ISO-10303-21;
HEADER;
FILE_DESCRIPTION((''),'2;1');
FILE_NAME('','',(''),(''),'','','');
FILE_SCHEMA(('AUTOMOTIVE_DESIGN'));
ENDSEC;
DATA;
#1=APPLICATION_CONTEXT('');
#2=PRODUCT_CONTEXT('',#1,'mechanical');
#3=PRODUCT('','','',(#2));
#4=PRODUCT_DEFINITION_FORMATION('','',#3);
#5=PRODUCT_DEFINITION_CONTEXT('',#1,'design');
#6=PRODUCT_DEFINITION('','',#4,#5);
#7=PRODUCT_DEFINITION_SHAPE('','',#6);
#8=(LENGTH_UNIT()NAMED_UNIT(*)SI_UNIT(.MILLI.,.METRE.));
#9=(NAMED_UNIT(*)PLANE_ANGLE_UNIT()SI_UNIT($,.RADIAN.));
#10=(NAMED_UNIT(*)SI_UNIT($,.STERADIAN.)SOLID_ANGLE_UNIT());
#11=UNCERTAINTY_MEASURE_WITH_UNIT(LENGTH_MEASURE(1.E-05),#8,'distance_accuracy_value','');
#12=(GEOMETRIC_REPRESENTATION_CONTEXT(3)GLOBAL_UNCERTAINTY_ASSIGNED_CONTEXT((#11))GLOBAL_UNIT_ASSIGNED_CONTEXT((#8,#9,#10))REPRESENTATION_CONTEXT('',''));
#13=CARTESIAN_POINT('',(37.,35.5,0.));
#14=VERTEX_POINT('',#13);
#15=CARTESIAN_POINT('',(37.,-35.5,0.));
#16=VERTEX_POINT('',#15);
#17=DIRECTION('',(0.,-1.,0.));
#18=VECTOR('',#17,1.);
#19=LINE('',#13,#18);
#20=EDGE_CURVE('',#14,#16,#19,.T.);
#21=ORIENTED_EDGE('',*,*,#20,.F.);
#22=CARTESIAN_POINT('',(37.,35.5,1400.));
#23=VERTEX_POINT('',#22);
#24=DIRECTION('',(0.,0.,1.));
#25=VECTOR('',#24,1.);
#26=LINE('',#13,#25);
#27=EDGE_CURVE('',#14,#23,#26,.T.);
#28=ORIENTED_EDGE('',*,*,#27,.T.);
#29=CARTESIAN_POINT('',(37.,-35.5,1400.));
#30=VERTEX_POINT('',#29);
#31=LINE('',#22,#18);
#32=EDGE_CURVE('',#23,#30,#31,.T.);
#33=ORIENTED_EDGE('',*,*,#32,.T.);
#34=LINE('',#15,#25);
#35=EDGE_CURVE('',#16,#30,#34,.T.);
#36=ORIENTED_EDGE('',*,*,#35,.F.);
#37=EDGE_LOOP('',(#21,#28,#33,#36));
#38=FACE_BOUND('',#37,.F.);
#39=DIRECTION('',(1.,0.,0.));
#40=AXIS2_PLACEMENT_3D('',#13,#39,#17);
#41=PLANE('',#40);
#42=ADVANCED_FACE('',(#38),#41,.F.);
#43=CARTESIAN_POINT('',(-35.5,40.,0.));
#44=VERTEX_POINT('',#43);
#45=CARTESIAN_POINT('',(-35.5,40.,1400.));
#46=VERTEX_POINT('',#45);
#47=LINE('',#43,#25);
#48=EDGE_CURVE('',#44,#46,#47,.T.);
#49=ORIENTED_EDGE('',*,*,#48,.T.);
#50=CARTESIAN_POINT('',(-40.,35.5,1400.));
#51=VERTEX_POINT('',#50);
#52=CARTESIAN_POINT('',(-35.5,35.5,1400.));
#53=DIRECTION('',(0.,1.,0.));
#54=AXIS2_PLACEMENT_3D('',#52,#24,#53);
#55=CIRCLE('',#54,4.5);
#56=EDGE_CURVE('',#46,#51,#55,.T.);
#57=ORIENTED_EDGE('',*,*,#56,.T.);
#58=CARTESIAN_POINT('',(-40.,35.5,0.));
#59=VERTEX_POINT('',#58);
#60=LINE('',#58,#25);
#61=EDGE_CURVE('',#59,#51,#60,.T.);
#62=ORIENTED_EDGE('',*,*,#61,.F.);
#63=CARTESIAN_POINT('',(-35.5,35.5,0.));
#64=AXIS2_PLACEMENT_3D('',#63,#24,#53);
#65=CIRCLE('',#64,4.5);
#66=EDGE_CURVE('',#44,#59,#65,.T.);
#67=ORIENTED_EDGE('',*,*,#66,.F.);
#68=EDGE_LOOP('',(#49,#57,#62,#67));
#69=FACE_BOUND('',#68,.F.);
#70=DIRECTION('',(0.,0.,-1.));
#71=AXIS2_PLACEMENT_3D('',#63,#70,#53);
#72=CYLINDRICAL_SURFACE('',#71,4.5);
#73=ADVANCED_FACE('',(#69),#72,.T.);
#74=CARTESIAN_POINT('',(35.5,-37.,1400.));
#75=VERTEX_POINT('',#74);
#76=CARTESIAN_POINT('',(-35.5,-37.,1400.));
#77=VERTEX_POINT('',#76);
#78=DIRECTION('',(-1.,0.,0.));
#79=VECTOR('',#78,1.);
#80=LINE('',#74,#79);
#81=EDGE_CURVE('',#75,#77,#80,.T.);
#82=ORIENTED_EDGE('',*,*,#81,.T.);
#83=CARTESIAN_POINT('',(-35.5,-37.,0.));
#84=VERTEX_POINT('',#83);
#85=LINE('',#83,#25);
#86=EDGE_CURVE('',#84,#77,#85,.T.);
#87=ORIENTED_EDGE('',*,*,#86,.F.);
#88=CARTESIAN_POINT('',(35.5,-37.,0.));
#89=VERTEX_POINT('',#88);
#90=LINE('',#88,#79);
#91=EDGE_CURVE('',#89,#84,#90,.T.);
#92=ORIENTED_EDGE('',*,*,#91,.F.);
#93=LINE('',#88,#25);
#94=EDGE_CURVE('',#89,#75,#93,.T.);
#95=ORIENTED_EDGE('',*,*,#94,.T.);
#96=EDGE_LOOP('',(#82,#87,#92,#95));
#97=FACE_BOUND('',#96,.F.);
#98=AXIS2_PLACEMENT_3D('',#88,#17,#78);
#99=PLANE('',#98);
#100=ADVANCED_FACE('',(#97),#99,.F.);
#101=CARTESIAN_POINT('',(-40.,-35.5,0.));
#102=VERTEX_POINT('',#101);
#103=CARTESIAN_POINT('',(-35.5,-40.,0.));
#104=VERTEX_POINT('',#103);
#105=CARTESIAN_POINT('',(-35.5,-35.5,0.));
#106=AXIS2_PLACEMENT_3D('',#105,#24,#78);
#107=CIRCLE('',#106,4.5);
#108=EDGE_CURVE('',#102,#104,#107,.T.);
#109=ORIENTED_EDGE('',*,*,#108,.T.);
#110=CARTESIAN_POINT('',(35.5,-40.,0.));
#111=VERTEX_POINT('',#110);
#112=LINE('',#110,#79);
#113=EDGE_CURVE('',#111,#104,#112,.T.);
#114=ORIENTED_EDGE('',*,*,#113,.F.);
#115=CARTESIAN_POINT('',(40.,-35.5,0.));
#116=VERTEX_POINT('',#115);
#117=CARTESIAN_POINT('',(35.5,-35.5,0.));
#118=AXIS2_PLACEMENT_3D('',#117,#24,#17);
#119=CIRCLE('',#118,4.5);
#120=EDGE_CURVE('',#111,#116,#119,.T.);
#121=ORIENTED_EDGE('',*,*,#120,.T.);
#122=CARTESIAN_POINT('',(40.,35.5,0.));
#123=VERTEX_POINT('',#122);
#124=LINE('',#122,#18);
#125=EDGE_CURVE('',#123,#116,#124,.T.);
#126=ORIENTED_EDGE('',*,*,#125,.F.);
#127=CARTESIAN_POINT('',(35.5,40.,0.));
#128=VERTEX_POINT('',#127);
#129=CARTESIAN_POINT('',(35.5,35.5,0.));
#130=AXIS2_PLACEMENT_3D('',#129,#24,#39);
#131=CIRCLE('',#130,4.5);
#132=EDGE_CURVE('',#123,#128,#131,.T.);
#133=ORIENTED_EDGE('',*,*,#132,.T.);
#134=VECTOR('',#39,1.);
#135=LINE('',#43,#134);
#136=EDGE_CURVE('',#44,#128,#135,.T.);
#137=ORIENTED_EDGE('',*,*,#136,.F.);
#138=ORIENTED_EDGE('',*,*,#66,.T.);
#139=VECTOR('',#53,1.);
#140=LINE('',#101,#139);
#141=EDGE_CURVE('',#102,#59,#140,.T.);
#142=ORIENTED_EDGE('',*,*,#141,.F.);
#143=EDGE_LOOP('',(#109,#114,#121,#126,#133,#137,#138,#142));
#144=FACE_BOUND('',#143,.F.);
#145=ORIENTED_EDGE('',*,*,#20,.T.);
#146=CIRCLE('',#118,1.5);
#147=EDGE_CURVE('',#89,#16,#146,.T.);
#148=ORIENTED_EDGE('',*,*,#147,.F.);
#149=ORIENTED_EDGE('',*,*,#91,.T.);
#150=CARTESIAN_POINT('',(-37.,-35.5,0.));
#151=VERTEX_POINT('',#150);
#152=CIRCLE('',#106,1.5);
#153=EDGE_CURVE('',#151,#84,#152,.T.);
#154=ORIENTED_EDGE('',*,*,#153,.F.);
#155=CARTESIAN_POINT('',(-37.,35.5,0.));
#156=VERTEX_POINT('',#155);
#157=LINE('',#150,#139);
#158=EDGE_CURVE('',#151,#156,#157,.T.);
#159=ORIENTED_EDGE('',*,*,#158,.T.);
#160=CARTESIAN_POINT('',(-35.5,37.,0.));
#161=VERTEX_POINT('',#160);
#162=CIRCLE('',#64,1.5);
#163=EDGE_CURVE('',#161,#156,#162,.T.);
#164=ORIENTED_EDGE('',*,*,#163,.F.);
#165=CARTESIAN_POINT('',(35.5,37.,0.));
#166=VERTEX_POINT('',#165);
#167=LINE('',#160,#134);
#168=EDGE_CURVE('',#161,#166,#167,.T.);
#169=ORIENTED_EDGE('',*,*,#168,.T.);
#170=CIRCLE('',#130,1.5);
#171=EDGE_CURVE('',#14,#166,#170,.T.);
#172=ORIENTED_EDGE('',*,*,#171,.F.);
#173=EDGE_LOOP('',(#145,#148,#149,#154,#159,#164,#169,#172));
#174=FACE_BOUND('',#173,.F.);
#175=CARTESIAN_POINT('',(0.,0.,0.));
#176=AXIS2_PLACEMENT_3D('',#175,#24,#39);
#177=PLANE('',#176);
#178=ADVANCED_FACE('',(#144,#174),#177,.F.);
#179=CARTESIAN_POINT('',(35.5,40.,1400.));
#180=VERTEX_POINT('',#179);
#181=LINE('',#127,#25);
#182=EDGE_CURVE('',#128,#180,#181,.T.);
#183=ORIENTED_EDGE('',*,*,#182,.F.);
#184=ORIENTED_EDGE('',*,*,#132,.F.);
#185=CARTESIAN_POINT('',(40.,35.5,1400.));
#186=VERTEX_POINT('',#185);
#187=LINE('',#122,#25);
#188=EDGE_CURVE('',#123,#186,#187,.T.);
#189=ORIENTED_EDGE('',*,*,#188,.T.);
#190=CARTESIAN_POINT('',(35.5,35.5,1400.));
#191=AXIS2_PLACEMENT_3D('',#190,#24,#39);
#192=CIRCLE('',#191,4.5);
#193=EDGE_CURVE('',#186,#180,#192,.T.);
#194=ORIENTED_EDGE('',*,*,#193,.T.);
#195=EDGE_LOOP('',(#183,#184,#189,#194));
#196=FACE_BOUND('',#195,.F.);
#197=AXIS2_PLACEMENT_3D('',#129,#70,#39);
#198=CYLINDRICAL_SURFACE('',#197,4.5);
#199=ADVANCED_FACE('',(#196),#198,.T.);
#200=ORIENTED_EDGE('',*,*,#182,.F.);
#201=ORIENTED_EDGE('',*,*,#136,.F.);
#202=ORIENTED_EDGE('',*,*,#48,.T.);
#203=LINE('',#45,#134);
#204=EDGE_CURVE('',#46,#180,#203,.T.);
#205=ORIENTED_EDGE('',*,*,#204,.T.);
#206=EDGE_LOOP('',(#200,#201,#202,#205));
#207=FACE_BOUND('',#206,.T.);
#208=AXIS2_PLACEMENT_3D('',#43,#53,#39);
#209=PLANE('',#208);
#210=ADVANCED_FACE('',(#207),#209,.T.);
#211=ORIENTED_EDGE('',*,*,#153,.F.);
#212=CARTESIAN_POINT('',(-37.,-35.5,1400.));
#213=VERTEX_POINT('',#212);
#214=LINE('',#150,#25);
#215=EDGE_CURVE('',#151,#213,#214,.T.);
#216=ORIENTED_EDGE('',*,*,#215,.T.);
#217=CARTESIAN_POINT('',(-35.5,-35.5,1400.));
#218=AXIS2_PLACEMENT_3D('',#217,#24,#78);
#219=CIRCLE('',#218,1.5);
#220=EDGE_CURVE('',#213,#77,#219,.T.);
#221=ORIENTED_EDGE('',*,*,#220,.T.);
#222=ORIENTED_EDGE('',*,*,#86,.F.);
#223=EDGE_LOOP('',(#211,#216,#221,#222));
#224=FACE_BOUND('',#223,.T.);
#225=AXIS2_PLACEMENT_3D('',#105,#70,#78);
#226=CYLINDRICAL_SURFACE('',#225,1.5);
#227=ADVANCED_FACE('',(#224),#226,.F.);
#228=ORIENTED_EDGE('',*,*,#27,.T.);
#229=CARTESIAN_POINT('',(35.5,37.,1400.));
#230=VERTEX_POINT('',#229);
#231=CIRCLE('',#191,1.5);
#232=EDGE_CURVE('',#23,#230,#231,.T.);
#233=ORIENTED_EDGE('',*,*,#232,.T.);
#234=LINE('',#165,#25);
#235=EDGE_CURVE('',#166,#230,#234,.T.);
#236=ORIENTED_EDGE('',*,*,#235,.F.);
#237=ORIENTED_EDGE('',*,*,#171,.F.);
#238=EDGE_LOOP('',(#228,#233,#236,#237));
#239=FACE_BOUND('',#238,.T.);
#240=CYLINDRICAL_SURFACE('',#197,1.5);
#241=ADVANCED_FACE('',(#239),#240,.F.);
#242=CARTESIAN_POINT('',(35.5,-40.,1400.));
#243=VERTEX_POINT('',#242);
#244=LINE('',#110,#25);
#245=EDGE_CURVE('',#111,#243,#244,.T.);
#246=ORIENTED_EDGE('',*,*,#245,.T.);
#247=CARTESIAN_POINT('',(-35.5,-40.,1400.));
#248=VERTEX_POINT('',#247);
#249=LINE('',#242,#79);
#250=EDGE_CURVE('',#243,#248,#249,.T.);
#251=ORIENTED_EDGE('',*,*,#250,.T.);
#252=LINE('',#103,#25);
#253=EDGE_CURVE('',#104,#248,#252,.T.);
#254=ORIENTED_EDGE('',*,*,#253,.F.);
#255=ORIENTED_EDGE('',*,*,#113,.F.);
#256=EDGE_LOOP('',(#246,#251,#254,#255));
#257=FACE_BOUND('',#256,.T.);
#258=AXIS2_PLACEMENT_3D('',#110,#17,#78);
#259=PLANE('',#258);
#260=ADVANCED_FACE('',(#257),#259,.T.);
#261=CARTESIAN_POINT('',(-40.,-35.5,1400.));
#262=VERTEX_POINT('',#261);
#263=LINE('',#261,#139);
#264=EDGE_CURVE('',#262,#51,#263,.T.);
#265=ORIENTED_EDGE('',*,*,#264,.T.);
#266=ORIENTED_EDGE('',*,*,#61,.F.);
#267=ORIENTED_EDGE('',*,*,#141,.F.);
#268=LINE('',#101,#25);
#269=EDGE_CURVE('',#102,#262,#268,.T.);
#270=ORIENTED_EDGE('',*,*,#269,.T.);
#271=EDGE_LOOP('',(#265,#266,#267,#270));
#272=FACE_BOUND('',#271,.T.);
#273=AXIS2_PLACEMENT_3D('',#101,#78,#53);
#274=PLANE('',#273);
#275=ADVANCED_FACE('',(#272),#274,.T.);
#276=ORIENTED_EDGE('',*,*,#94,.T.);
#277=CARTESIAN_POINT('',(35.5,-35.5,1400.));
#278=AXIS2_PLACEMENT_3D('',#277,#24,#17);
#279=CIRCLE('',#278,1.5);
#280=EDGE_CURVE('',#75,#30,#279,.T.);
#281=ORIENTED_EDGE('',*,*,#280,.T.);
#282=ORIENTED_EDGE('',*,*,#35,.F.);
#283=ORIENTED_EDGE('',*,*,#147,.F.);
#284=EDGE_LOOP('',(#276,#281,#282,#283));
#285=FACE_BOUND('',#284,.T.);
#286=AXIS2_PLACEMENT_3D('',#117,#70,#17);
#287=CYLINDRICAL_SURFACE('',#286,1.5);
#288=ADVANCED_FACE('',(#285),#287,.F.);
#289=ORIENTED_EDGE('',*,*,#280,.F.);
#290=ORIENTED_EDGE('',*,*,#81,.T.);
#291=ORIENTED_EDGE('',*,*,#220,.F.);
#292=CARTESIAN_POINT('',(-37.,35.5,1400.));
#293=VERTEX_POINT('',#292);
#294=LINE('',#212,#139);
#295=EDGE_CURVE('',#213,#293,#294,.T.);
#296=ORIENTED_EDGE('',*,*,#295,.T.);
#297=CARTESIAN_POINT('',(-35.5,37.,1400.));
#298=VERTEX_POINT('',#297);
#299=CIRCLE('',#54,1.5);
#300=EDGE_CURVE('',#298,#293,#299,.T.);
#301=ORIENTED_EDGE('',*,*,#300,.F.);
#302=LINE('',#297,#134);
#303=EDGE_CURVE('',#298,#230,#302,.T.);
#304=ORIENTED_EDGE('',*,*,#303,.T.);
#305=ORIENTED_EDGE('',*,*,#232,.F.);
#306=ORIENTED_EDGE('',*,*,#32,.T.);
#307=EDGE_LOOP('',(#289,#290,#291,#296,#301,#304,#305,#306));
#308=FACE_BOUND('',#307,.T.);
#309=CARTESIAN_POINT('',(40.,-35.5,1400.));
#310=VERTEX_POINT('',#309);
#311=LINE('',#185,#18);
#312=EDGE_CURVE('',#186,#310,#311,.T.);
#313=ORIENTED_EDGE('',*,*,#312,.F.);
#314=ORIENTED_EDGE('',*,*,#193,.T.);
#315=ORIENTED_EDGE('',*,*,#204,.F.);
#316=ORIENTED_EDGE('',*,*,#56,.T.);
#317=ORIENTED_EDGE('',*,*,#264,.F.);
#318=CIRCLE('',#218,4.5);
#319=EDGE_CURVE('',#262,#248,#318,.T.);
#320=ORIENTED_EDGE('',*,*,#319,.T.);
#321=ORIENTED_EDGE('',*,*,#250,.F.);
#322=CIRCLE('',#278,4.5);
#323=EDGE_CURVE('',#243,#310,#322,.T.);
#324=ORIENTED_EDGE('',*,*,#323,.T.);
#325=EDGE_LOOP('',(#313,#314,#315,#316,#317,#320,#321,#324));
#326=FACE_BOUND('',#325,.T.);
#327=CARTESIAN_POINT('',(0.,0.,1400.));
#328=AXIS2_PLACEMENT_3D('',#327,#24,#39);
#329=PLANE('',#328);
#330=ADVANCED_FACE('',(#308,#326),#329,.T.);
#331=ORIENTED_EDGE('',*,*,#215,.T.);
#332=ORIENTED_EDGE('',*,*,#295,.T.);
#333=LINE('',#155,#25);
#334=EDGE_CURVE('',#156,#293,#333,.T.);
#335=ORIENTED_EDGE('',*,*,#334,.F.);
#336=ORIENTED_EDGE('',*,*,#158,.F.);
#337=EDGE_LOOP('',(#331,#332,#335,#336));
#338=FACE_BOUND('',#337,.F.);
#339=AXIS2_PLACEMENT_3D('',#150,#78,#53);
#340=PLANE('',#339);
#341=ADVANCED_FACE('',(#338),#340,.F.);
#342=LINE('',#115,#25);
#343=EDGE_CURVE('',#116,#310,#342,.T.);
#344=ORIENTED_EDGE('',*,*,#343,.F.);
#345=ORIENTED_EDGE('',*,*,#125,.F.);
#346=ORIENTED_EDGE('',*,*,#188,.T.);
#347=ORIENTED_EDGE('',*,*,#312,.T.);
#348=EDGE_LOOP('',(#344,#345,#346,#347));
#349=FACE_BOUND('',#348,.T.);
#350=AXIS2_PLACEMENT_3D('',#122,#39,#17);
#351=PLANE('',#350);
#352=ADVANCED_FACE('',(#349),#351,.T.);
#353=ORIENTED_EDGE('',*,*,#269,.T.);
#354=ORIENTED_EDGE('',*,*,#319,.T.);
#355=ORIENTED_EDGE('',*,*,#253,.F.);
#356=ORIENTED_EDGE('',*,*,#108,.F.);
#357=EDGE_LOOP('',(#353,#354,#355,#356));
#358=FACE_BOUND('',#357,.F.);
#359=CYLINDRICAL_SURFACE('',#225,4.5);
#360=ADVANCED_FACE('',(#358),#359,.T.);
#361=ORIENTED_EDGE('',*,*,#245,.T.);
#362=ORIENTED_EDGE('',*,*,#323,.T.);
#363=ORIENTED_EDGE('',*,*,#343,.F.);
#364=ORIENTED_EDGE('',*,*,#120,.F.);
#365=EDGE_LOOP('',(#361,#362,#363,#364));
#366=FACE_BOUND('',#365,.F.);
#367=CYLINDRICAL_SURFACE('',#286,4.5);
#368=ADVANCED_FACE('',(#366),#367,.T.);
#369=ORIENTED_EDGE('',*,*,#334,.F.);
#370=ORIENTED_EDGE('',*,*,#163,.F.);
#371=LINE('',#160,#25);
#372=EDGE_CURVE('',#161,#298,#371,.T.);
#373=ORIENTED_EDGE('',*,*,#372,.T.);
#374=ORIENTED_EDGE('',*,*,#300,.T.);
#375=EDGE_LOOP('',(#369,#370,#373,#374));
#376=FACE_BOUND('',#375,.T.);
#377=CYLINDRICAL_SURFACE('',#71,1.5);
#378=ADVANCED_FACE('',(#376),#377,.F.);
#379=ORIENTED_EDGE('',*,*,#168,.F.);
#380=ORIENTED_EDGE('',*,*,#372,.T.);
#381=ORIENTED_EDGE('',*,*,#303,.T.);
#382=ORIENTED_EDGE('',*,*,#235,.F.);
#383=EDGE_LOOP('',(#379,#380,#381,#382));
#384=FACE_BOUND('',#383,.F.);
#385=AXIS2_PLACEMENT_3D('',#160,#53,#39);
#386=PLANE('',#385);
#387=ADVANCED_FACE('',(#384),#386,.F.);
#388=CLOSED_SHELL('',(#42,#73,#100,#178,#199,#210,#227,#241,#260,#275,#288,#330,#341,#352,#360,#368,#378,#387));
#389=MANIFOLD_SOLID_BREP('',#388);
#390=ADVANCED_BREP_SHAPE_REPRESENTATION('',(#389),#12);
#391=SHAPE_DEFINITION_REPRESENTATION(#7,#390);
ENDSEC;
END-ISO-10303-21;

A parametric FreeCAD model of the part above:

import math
import FreeCAD as App
import Part
import Sketcher

V = App.Vector
Q = App.Units.Quantity

doc = App.newDocument("Part")
body = doc.addObject("PartDesign::Body", "Body")

sketch1 = doc.addObject("Sketcher::SketchObject", "Sketch")
body.addObject(sketch1)
sketch1.AttachmentSupport = (doc.XY_Plane, [""])
sketch1.MapMode = "FlatFace"
sketch1.addGeometry([
    Part.LineSegment(V(-40, 35.5, 0), V(-40, -35.5, 0)),
    Part.ArcOfCircle(Part.Circle(V(-35.5, -35.5, 0), V(0, 0, 1), 4.5), math.radians(180), math.radians(270)),
    Part.LineSegment(V(-35.5, -40, 0), V(35.5, -40, 0)),
    Part.ArcOfCircle(Part.Circle(V(35.5, -35.5, 0), V(0, 0, 1), 4.5), math.radians(-90), math.radians(0)),
    Part.LineSegment(V(40, -35.5, 0), V(40, 35.5, 0)),
    Part.ArcOfCircle(Part.Circle(V(35.5, 35.5, 0), V(0, 0, 1), 4.5), math.radians(0), math.radians(90)),
    Part.LineSegment(V(35.5, 40, 0), V(-35.5, 40, 0)),
    Part.ArcOfCircle(Part.Circle(V(-35.5, 35.5, 0), V(0, 0, 1), 4.5), math.radians(90), math.radians(180)),
    Part.ArcOfCircle(Part.Circle(V(-35.5, 35.5, 0), V(0, 0, 1), 1.5), math.radians(90), math.radians(180)),
    Part.LineSegment(V(-35.5, 37, 0), V(35.5, 37, 0)),
    Part.ArcOfCircle(Part.Circle(V(35.5, 35.5, 0), V(0, 0, 1), 1.5), math.radians(0), math.radians(90)),
    Part.LineSegment(V(37, 35.5, 0), V(37, -35.5, 0)),
    Part.ArcOfCircle(Part.Circle(V(35.5, -35.5, 0), V(0, 0, 1), 1.5), math.radians(-90), math.radians(0)),
    Part.LineSegment(V(35.5, -37, 0), V(-35.5, -37, 0)),
    Part.ArcOfCircle(Part.Circle(V(-35.5, -35.5, 0), V(0, 0, 1), 1.5), math.radians(180), math.radians(270)),
    Part.LineSegment(V(-37, -35.5, 0), V(-37, 35.5, 0)),
], False)
sketch1.addConstraint([
    Sketcher.Constraint("Tangent", 0, 2, 1, 1),
    Sketcher.Constraint("Tangent", 1, 2, 2, 1),
    Sketcher.Constraint("Tangent", 2, 2, 3, 1),
    Sketcher.Constraint("Tangent", 3, 2, 4, 1),
    Sketcher.Constraint("Tangent", 4, 2, 5, 1),
    Sketcher.Constraint("Tangent", 5, 2, 6, 1),
    Sketcher.Constraint("Tangent", 6, 2, 7, 1),
    Sketcher.Constraint("Tangent", 7, 2, 0, 1),
    Sketcher.Constraint("Tangent", 8, 1, 9, 1),
    Sketcher.Constraint("Tangent", 9, 2, 10, 2),
    Sketcher.Constraint("Tangent", 10, 1, 11, 1),
    Sketcher.Constraint("Tangent", 11, 2, 12, 2),
    Sketcher.Constraint("Tangent", 12, 1, 13, 1),
    Sketcher.Constraint("Tangent", 13, 2, 14, 2),
    Sketcher.Constraint("Tangent", 14, 1, 15, 1),
    Sketcher.Constraint("Tangent", 15, 2, 8, 2),
    Sketcher.Constraint("Vertical", 0),
    Sketcher.Constraint("Horizontal", 2),
    Sketcher.Constraint("Vertical", 4),
    Sketcher.Constraint("Horizontal", 6),
    Sketcher.Constraint("Horizontal", 9),
    Sketcher.Constraint("Vertical", 11),
    Sketcher.Constraint("Horizontal", 13),
    Sketcher.Constraint("Vertical", 15),
    Sketcher.Constraint("Coincident", 8, 3, 7, 3),
    Sketcher.Constraint("Coincident", 10, 3, 5, 3),
    Sketcher.Constraint("Coincident", 12, 3, 3, 3),
    Sketcher.Constraint("Equal", 1, 3),
    Sketcher.Constraint("Equal", 3, 5),
    Sketcher.Constraint("Equal", 5, 7),
    Sketcher.Constraint("Equal", 12, 14),
    Sketcher.Constraint("Symmetric", 1, 3, 5, 3, -1, 1),
    Sketcher.Constraint("Equal", 13, 0),
    Sketcher.Constraint("Radius", 1, Q("4.5 mm")),
    Sketcher.Constraint("Radius", 8, Q("1.5 mm")),
    Sketcher.Constraint("DistanceX", 0, 2, -1, 1, Q("40 mm")),
])
pad1 = doc.addObject("PartDesign::Pad", "Pad")
body.addObject(pad1)
pad1.Profile = sketch1
pad1.Length = 1400

doc.recompute()
